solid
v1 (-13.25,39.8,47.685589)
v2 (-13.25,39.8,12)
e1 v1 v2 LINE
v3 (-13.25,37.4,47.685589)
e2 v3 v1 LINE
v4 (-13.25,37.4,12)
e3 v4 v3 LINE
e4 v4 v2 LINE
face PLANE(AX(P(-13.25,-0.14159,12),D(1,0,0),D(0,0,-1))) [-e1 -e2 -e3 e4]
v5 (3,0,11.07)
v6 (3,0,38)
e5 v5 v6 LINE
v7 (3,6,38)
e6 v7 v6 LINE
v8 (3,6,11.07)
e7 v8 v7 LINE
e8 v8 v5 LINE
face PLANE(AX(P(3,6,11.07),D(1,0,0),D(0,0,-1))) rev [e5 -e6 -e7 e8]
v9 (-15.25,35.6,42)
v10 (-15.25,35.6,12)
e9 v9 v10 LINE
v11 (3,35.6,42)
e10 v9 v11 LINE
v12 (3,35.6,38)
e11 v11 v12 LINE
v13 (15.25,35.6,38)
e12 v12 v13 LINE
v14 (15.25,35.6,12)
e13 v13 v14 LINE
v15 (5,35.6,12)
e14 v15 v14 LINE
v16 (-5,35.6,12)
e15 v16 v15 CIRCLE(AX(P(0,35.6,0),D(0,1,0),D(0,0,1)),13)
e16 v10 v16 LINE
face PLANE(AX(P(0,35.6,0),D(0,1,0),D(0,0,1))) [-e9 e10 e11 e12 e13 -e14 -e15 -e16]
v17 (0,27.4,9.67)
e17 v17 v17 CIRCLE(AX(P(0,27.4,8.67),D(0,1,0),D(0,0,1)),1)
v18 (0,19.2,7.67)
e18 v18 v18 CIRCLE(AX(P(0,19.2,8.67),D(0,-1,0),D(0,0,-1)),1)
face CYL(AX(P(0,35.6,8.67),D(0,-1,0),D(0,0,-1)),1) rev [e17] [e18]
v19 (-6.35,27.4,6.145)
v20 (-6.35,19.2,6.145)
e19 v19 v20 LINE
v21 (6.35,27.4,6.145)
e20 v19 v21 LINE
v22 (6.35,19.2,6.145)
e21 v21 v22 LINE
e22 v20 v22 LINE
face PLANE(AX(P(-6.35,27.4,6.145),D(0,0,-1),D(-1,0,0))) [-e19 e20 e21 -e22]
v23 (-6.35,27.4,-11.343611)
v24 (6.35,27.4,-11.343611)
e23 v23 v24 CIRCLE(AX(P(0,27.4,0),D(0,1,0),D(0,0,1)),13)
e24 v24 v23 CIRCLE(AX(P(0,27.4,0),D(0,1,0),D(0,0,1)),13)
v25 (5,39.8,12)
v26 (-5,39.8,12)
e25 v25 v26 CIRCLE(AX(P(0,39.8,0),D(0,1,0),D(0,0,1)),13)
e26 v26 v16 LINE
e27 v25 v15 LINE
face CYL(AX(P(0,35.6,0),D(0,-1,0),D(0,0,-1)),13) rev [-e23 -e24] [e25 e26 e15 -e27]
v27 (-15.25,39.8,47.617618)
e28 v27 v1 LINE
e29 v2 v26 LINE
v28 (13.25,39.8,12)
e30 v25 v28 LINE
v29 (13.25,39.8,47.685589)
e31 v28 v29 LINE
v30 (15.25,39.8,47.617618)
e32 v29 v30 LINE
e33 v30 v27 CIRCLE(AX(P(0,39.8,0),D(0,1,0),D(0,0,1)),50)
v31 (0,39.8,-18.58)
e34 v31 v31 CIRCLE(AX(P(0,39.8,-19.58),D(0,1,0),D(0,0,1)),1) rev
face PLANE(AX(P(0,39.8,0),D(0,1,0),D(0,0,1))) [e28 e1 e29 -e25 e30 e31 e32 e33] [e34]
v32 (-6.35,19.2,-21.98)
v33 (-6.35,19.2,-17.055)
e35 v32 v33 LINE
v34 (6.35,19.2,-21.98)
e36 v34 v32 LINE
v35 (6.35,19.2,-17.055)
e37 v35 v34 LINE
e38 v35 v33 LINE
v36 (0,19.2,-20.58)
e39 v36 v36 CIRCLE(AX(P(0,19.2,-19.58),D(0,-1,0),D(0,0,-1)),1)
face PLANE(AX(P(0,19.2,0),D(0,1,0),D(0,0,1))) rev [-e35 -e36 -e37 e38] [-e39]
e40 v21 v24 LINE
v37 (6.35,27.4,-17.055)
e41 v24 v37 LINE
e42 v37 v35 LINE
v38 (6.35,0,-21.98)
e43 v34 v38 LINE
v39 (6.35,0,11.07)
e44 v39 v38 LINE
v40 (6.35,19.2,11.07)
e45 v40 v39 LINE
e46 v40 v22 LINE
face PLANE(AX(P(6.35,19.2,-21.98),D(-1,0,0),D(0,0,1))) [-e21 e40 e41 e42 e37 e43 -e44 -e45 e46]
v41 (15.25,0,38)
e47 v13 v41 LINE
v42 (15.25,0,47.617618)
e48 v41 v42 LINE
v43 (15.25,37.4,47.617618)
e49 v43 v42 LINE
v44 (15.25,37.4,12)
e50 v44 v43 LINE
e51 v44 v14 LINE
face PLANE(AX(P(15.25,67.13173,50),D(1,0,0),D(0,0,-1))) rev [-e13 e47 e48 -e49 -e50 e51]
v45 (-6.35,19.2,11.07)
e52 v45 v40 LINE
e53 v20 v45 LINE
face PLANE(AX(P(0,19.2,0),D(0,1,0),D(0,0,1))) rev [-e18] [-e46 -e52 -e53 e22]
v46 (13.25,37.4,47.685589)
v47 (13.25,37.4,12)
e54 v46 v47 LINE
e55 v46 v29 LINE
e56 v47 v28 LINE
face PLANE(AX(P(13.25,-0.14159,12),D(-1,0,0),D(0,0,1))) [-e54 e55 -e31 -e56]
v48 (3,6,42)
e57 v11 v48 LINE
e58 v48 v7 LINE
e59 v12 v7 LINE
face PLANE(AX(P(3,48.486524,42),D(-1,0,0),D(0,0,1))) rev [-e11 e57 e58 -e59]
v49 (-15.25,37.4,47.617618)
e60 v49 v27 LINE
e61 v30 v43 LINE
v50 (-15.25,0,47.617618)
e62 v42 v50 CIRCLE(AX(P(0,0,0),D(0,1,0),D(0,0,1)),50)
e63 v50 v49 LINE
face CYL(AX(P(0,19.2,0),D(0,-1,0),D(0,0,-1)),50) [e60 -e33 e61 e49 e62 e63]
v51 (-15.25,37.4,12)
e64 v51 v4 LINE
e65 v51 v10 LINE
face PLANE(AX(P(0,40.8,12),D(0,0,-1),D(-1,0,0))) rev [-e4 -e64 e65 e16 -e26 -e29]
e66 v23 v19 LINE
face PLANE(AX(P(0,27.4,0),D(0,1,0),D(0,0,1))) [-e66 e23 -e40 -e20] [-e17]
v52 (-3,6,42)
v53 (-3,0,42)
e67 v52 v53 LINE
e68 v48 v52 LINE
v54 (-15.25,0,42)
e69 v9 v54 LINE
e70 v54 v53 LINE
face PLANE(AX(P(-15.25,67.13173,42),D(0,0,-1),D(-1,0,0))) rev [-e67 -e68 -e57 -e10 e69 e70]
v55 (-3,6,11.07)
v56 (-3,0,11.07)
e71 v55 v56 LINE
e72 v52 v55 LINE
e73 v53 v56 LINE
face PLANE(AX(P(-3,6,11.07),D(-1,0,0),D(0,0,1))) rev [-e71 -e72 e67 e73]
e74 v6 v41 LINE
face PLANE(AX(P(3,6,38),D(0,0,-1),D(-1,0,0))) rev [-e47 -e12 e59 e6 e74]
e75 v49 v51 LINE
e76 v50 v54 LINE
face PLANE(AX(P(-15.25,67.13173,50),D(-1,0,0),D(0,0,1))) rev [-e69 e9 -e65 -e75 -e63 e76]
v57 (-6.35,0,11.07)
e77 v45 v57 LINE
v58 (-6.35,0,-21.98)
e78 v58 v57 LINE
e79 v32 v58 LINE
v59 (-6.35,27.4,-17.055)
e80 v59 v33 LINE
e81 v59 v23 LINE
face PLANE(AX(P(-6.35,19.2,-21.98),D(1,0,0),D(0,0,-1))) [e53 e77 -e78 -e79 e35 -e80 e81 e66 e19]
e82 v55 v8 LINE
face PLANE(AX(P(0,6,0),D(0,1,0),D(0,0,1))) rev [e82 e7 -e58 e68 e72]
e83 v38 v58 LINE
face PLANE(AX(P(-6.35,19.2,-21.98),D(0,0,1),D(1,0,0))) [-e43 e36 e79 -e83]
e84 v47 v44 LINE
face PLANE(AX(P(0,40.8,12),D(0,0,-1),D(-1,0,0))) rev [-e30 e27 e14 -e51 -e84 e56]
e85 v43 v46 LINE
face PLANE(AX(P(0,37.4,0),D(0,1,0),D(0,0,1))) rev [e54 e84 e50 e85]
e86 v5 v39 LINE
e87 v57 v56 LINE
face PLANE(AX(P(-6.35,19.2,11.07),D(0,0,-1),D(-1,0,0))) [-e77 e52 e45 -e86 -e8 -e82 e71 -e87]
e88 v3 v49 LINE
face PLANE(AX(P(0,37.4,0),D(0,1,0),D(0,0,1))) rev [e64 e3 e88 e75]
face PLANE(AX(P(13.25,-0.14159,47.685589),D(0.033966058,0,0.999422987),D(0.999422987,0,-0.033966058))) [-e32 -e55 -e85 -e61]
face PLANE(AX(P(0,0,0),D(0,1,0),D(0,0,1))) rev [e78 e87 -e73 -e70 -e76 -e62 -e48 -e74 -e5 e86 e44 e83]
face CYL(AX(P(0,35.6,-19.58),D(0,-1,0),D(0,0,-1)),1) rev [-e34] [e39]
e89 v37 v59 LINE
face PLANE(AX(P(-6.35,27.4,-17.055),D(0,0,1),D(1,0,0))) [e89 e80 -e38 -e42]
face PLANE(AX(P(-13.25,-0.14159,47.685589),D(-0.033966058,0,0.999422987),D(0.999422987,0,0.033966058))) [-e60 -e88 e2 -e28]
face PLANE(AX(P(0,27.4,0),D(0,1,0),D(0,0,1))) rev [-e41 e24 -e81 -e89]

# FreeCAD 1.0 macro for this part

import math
import FreeCAD as App
import Part
import Sketcher
from FreeCAD import Vector
Q = App.Units.Quantity


def add_polygon(sketch, points):
    """Adds a closed chain of lines whose ends are joined by coincident constraints."""
    first, n = sketch.GeometryCount, len(points)
    for a, b in zip(points, points[1:] + points[:1]):
        sketch.addGeometry(Part.LineSegment(App.Vector(*a, 0), App.Vector(*b, 0)), False)
    for i in range(n):
        sketch.addConstraint(Sketcher.Constraint("Coincident", first + i, 2, first + (i + 1) % n, 1))

doc = App.newDocument("Part")
params = doc.addObject("Spreadsheet::Sheet", "Params")
for row, (alias, value) in enumerate([
    ("sketch1_diameter", "100 mm"),
    ("sketch1_width", "12.7 mm"),
    ("sketch1_height", "33.05 mm"),
    ("pad1_length", "19.2 mm"),
    ("sketch2_diameter", "100 mm"),
    ("sketch2_width", "12.7 mm"),
    ("sketch2_height", "23.2 mm"),
    ("pad2_length", "8.2 mm"),
    ("sketch3_diameter", "100 mm"),
    ("sketch3_diameter2", "26 mm"),
    ("pad3_length", "8.2 mm"),
    ("sketch4_diameter", "2 mm"),
    ("sketch5_height", "8 mm"),
    ("sketch5_width", "30.5 mm"),
    ("pocket2_length", "35.6 mm"),
    ("sketch6_width", "6 mm"),
    ("sketch6_height", "4 mm"),
    ("sketch6_width2", "12.25 mm"),
    ("sketch6_height2", "26.93 mm"),
    ("pocket3_length", "6 mm"),
    ("sketch7_height", "4 mm"),
    ("sketch7_width", "12.25 mm"),
    ("pocket4_length", "29.6 mm"),
    ("sketch8_diameter", "2 mm"),
    ("sketch8_radius", "50 mm"),
    ("sketch8_radius2", "13 mm"),
    ("sketch8_width", "10.25 mm"),
    ("pad4_length", "5.2 mm"),
    ("sketch9_diameter", "100 mm"),
    ("pocket5_length", "1 mm"),
    ("sketch10_width", "2 mm"),
    ("pad5_length", "2.4 mm"),
], start=1):
    params.set(f"A{row}", alias)
    params.set(f"B{row}", "=" + value)
    params.setAlias(f"B{row}", alias)

body = doc.addObject("PartDesign::Body", "Body")

# Sketch on XZ plane
sketch1 = body.newObject("Sketcher::SketchObject", "Sketch")
sketch1.AttachmentSupport = (doc.getObject("XZ_Plane"), [""])
sketch1.MapMode = "FlatFace"
sketch1.addGeometry(Part.Circle(Vector(0, 0, 0), Vector(0, 0, 1), 50), False)  # 0
add_polygon(sketch1, [(6, 11), (-6, 11), (-6, -22), (6, -22)])  # lines 1-4
sketch1.addConstraint([
    Sketcher.Constraint("Horizontal", 1),
    Sketcher.Constraint("Vertical", 2),
    Sketcher.Constraint("Horizontal", 3),
    Sketcher.Constraint("Vertical", 4),
    Sketcher.Constraint("Coincident", 0, 3, -1, 1),
    Sketcher.Constraint("Diameter", 0, Q("100 mm")),
    Sketcher.Constraint("DistanceX", 1, 2, 1, 1, Q("12.7 mm")),
    Sketcher.Constraint("DistanceY", 2, 2, 2, 1, Q("33.05 mm")),
    Sketcher.Constraint("DistanceX", 1, 2, -1, 1, Q("6.35 mm")),
    Sketcher.Constraint("DistanceY", -1, 1, 1, 2, Q("11.07 mm")),
])
sketch1.setExpression("Constraints[9]", "Params.sketch1_diameter")
sketch1.setExpression("Constraints[10]", "Params.sketch1_width")
sketch1.setExpression("Constraints[11]", "Params.sketch1_height")
pad1 = body.newObject("PartDesign::Pad", "Pad")
pad1.Profile = sketch1
pad1.setExpression("Length", "Params.pad1_length")
pad1.Reversed = True

# Sketch on XZ plane
sketch2 = body.newObject("Sketcher::SketchObject", "Sketch001")
sketch2.AttachmentSupport = (doc.getObject("XZ_Plane"), [""])
sketch2.MapMode = "FlatFace"
sketch2.AttachmentOffset = App.Placement(Vector(0, 0, -19.2), App.Rotation())
sketch2.addGeometry(Part.Circle(Vector(0, 0, 0), Vector(0, 0, 1), 50), False)  # 0
add_polygon(sketch2, [(6, 6), (-6, 6), (-6, -17), (6, -17)])  # lines 1-4
sketch2.addConstraint([
    Sketcher.Constraint("Horizontal", 1),
    Sketcher.Constraint("Vertical", 2),
    Sketcher.Constraint("Horizontal", 3),
    Sketcher.Constraint("Vertical", 4),
    Sketcher.Constraint("Coincident", 0, 3, -1, 1),
    Sketcher.Constraint("Diameter", 0, Q("100 mm")),
    Sketcher.Constraint("DistanceX", 1, 2, 1, 1, Q("12.7 mm")),
    Sketcher.Constraint("DistanceY", 2, 2, 2, 1, Q("23.2 mm")),
    Sketcher.Constraint("DistanceX", 1, 2, -1, 1, Q("6.35 mm")),
    Sketcher.Constraint("DistanceY", -1, 1, 1, 2, Q("6.145 mm")),
])
sketch2.setExpression("Constraints[9]", "Params.sketch2_diameter")
sketch2.setExpression("Constraints[10]", "Params.sketch2_width")
sketch2.setExpression("Constraints[11]", "Params.sketch2_height")
pad2 = body.newObject("PartDesign::Pad", "Pad001")
pad2.Profile = sketch2
pad2.setExpression("Length", "Params.pad2_length")
pad2.Reversed = True

# Sketch on XZ plane
sketch3 = body.newObject("Sketcher::SketchObject", "Sketch002")
sketch3.AttachmentSupport = (doc.getObject("XZ_Plane"), [""])
sketch3.MapMode = "FlatFace"
sketch3.AttachmentOffset = App.Placement(Vector(0, 0, -27.4), App.Rotation())
sketch3.addGeometry([
    Part.Circle(Vector(0, 0, 0), Vector(0, 0, 1), 50),
    Part.Circle(Vector(0, 0, 0), Vector(0, 0, 1), 13),
], False)
sketch3.addConstraint([
    Sketcher.Constraint("Coincident", 0, 3, -1, 1),
    Sketcher.Constraint("Coincident", 1, 3, -1, 1),
    Sketcher.Constraint("Diameter", 0, Q("100 mm")),
    Sketcher.Constraint("Diameter", 1, Q("26 mm")),
])
sketch3.setExpression("Constraints[2]", "Params.sketch3_diameter")
sketch3.setExpression("Constraints[3]", "Params.sketch3_diameter2")
pad3 = body.newObject("PartDesign::Pad", "Pad002")
pad3.Profile = sketch3
pad3.setExpression("Length", "Params.pad3_length")
pad3.Reversed = True

# Sketch on XZ plane
sketch4 = body.newObject("Sketcher::SketchObject", "Sketch003")
sketch4.AttachmentSupport = (doc.getObject("XZ_Plane"), [""])
sketch4.MapMode = "FlatFace"
sketch4.AttachmentOffset = App.Placement(Vector(0, 0, -19.2), App.Rotation())
sketch4.addGeometry([
    Part.Circle(Vector(0, 8.7, 0), Vector(0, 0, 1), 1),
    Part.Circle(Vector(0, -19.6, 0), Vector(0, 0, 1), 1),
], False)
sketch4.addConstraint([
    Sketcher.Constraint("Equal", 0, 1),
    Sketcher.Constraint("PointOnObject", 0, 3, -2),
    Sketcher.Constraint("PointOnObject", 1, 3, -2),
    Sketcher.Constraint("Diameter", 0, Q("2 mm")),
    Sketcher.Constraint("DistanceY", -1, 1, 0, 3, Q("8.67 mm")),
    Sketcher.Constraint("DistanceY", 1, 3, -1, 1, Q("19.58 mm")),
])
sketch4.setExpression("Constraints[3]", "Params.sketch4_diameter")
pocket1 = body.newObject("PartDesign::Pocket", "Pocket")
pocket1.Profile = sketch4
pocket1.Type = "ThroughAll"

# Sketch on XZ plane
sketch5 = body.newObject("Sketcher::SketchObject", "Sketch004")
sketch5.AttachmentSupport = (doc.getObject("XZ_Plane"), [""])
sketch5.MapMode = "FlatFace"
add_polygon(sketch5, [(-15, 50), (-15, 42), (15, 42), (15, 50)])  # lines 0-3
sketch5.addConstraint([
    Sketcher.Constraint("Vertical", 0),
    Sketcher.Constraint("Horizontal", 1),
    Sketcher.Constraint("Vertical", 2),
    Sketcher.Constraint("Horizontal", 3),
    Sketcher.Constraint("DistanceY", 0, 2, 0, 1, Q("8 mm")),
    Sketcher.Constraint("DistanceX", 1, 1, 1, 2, Q("30.5 mm")),
    Sketcher.Constraint("DistanceY", -1, 1, 0, 2, Q("42 mm")),
    Sketcher.Constraint("DistanceX", 0, 2, -1, 1, Q("15.25 mm")),
])
sketch5.setExpression("Constraints[8]", "Params.sketch5_height")
sketch5.setExpression("Constraints[9]", "Params.sketch5_width")
pocket2 = body.newObject("PartDesign::Pocket", "Pocket001")
pocket2.Profile = sketch5
pocket2.setExpression("Length", "Params.pocket2_length")

# Sketch on XZ plane
sketch6 = body.newObject("Sketcher::SketchObject", "Sketch005")
sketch6.AttachmentSupport = (doc.getObject("XZ_Plane"), [""])
sketch6.MapMode = "FlatFace"
add_polygon(sketch6, [(-3, 11.1), (3, 11.1), (3, 38), (15.2, 38), (15.2, 42), (-3, 42)])  # lines 0-5
sketch6.addConstraint([
    Sketcher.Constraint("Horizontal", 0),
    Sketcher.Constraint("Vertical", 1),
    Sketcher.Constraint("Horizontal", 2),
    Sketcher.Constraint("Vertical", 3),
    Sketcher.Constraint("Horizontal", 4),
    Sketcher.Constraint("Vertical", 5),
    Sketcher.Constraint("DistanceX", 0, 1, 0, 2, Q("6 mm")),
    Sketcher.Constraint("DistanceY", 3, 1, 3, 2, Q("4 mm")),
    Sketcher.Constraint("DistanceX", -1, 1, 0, 2, Q("3 mm")),
    Sketcher.Constraint("DistanceY", -1, 1, 1, 2, Q("38 mm")),
    Sketcher.Constraint("DistanceX", 2, 1, 2, 2, Q("12.25 mm")),
    Sketcher.Constraint("DistanceY", 1, 1, 1, 2, Q("26.93 mm")),
])
sketch6.setExpression("Constraints[12]", "Params.sketch6_width")
sketch6.setExpression("Constraints[13]", "Params.sketch6_height")
sketch6.setExpression("Constraints[16]", "Params.sketch6_width2")
sketch6.setExpression("Constraints[17]", "Params.sketch6_height2")
pocket3 = body.newObject("PartDesign::Pocket", "Pocket002")
pocket3.Profile = sketch6
pocket3.setExpression("Length", "Params.pocket3_length")

# Sketch on XZ plane
sketch7 = body.newObject("Sketcher::SketchObject", "Sketch006")
sketch7.AttachmentSupport = (doc.getObject("XZ_Plane"), [""])
sketch7.MapMode = "FlatFace"
sketch7.AttachmentOffset = App.Placement(Vector(0, 0, -6), App.Rotation())
add_polygon(sketch7, [(3, 42), (3, 38), (15.2, 38), (15.2, 42)])  # lines 0-3
sketch7.addConstraint([
    Sketcher.Constraint("Vertical", 0),
    Sketcher.Constraint("Horizontal", 1),
    Sketcher.Constraint("Vertical", 2),
    Sketcher.Constraint("Horizontal", 3),
    Sketcher.Constraint("DistanceY", 0, 2, 0, 1, Q("4 mm")),
    Sketcher.Constraint("DistanceX", -1, 1, 0, 2, Q("3 mm")),
    Sketcher.Constraint("DistanceY", -1, 1, 0, 2, Q("38 mm")),
    Sketcher.Constraint("DistanceX", 1, 1, 1, 2, Q("12.25 mm")),
])
sketch7.setExpression("Constraints[8]", "Params.sketch7_height")
sketch7.setExpression("Constraints[11]", "Params.sketch7_width")
pocket4 = body.newObject("PartDesign::Pocket", "Pocket003")
pocket4.Profile = sketch7
pocket4.setExpression("Length", "Params.pocket4_length")

# Sketch on XZ plane
sketch8 = body.newObject("Sketcher::SketchObject", "Sketch007")
sketch8.AttachmentSupport = (doc.getObject("XZ_Plane"), [""])
sketch8.MapMode = "FlatFace"
sketch8.AttachmentOffset = App.Placement(Vector(0, 0, -35.6), App.Rotation())
sketch8.addGeometry([
    Part.ArcOfCircle(Part.Circle(Vector(0, 0, 0), Vector(0, 0, 1), 50), math.radians(108), math.radians(432)),  # 0
    Part.LineSegment(Vector(-15.2, 47.6, 0), Vector(-15.2, 12, 0)),  # 1
    Part.LineSegment(Vector(-15.2, 12, 0), Vector(-5, 12, 0)),  # 2
    Part.ArcOfCircle(Part.Circle(Vector(0, 0, 0), Vector(0, 0, 1), 13), math.radians(113), math.radians(360)),  # 3
    Part.ArcOfCircle(Part.Circle(Vector(0, 0, 0), Vector(0, 0, 1), 13), math.radians(0), math.radians(67)),  # 4
    Part.LineSegment(Vector(5, 12, 0), Vector(15.2, 12, 0)),  # 5
    Part.LineSegment(Vector(15.2, 12, 0), Vector(15.2, 47.6, 0)),  # 6
    Part.Circle(Vector(0, -19.6, 0), Vector(0, 0, 1), 1),  # 7
], False)
sketch8.addConstraint([
    Sketcher.Constraint("Coincident", 0, 1, 1, 1),
    Sketcher.Constraint("Coincident", 1, 2, 2, 1),
    Sketcher.Constraint("Coincident", 2, 2, 3, 1),
    Sketcher.Constraint("Tangent", 3, 2, 4, 1),
    Sketcher.Constraint("Coincident", 4, 2, 5, 1),
    Sketcher.Constraint("Coincident", 5, 2, 6, 1),
    Sketcher.Constraint("Coincident", 6, 2, 0, 2),
    Sketcher.Constraint("Vertical", 1),
    Sketcher.Constraint("Horizontal", 2),
    Sketcher.Constraint("Horizontal", 5),
    Sketcher.Constraint("Vertical", 6),
    Sketcher.Constraint("Coincident", 0, 3, -1, 1),
    Sketcher.Constraint("Coincident", 3, 3, -1, 1),
    Sketcher.Constraint("Equal", 3, 4),
    Sketcher.Constraint("Symmetric", 1, 2, 5, 2, -2),
    Sketcher.Constraint("PointOnObject", 7, 3, -2),
    Sketcher.Constraint("PointOnObject", 3, 2, -1),
    Sketcher.Constraint("Diameter", 7, Q("2 mm")),
    Sketcher.Constraint("Radius", 0, Q("50 mm")),
    Sketcher.Constraint("Radius", 3, Q("13 mm")),
    Sketcher.Constraint("DistanceY", -1, 1, 1, 2, Q("12 mm")),
    Sketcher.Constraint("DistanceX", 2, 1, 2, 2, Q("10.25 mm")),
    Sketcher.Constraint("DistanceY", 7, 3, -1, 1, Q("19.58 mm")),
])
sketch8.setExpression("Constraints[17]", "Params.sketch8_diameter")
sketch8.setExpression("Constraints[18]", "Params.sketch8_radius")
sketch8.setExpression("Constraints[19]", "Params.sketch8_radius2")
sketch8.setExpression("Constraints[21]", "Params.sketch8_width")
pad4 = body.newObject("PartDesign::Pad", "Pad003")
pad4.Profile = sketch8
pad4.setExpression("Length", "Params.pad4_length")
pad4.Reversed = True

# Sketch on XZ plane
sketch9 = body.newObject("Sketcher::SketchObject", "Sketch008")
sketch9.AttachmentSupport = (doc.getObject("XZ_Plane"), [""])
sketch9.MapMode = "FlatFace"
sketch9.AttachmentOffset = App.Placement(Vector(0, 0, -39.8), App.Rotation())
sketch9.addGeometry(Part.Circle(Vector(0, 0, 0), Vector(0, 0, 1), 50), False)
sketch9.addConstraint([
    Sketcher.Constraint("Coincident", 0, 3, -1, 1),
    Sketcher.Constraint("Diameter", 0, Q("100 mm")),
])
sketch9.setExpression("Constraints[1]", "Params.sketch9_diameter")
pocket5 = body.newObject("PartDesign::Pocket", "Pocket004")
pocket5.Profile = sketch9
pocket5.setExpression("Length", "Params.pocket5_length")

# Sketch on XZ plane
sketch10 = body.newObject("Sketcher::SketchObject", "Sketch009")
sketch10.AttachmentSupport = (doc.getObject("XZ_Plane"), [""])
sketch10.MapMode = "FlatFace"
sketch10.AttachmentOffset = App.Placement(Vector(0, 0, -39.8), App.Rotation())
add_polygon(sketch10, [(-13.2, 12), (-15.2, 12), (-15.2, 47.6), (-13.2, 47.7)])  # lines 0-3
add_polygon(sketch10, [(13.2, 47.7), (15.2, 47.6), (15.2, 12), (13.2, 12)])  # lines 4-7
sketch10.addConstraint([
    Sketcher.Constraint("Horizontal", 0),
    Sketcher.Constraint("Vertical", 1),
    Sketcher.Constraint("Vertical", 3),
    Sketcher.Constraint("Vertical", 5),
    Sketcher.Constraint("Horizontal", 6),
    Sketcher.Constraint("Vertical", 7),
    Sketcher.Constraint("Symmetric", 1, 2, 4, 2, -2),
    Sketcher.Constraint("Symmetric", 3, 2, 6, 2, -2),
    Sketcher.Constraint("Horizontal", 2, 2, 7, 2),
    Sketcher.Constraint("DistanceX", 0, 2, 0, 1, Q("2 mm")),
    Sketcher.Constraint("DistanceY", -1, 1, 0, 2, Q("12 mm")),
    Sketcher.Constraint("DistanceX", 2, 2, 4, 2, Q("28.5 mm")),
    Sketcher.Constraint("DistanceY", 3, 2, 3, 1, Q("35.685589 mm")),
    Sketcher.Constraint("DistanceY", 1, 1, 1, 2, Q("35.617618 mm")),
])
sketch10.setExpression("Constraints[17]", "Params.sketch10_width")
pad5 = body.newObject("PartDesign::Pad", "Pad004")
pad5.Profile = sketch10
pad5.setExpression("Length", "Params.pad5_length")

doc.recompute()
